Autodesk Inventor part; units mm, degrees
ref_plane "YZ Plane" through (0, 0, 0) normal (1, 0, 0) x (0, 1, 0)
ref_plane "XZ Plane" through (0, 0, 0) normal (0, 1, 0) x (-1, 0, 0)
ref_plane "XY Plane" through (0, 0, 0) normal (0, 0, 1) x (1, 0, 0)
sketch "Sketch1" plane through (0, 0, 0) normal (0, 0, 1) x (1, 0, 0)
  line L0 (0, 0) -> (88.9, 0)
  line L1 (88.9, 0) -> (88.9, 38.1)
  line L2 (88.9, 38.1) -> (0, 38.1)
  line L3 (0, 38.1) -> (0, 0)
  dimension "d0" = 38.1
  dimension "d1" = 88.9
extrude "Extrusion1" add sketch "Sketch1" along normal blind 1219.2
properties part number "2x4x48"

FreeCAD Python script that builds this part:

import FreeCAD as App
import Part
import Sketcher

V = App.Vector
Q = App.Units.Quantity


def add_polygon(sketch, points):
    """Adds a closed chain of lines whose ends are joined by coincident constraints."""
    first, n = sketch.GeometryCount, len(points)
    for a, b in zip(points, points[1:] + points[:1]):
        sketch.addGeometry(Part.LineSegment(App.Vector(*a, 0), App.Vector(*b, 0)), False)
    for i in range(n):
        sketch.addConstraint(Sketcher.Constraint("Coincident", first + i, 2, first + (i + 1) % n, 1))

doc = App.newDocument("Part")
body = doc.addObject("PartDesign::Body", "Body")

sketch1 = body.newObject("Sketcher::SketchObject", "Sketch")
sketch1.AttachmentSupport = (doc.getObject("XY_Plane"), [""])
sketch1.MapMode = "FlatFace"
add_polygon(sketch1, [(0, 38), (0, 0), (89, 0), (89, 38)])
sketch1.addConstraint([
    Sketcher.Constraint("Vertical", 0),
    Sketcher.Constraint("Horizontal", 1),
    Sketcher.Constraint("Vertical", 2),
    Sketcher.Constraint("Horizontal", 3),
    Sketcher.Constraint("Coincident", 0, 2, -1, 1),
    Sketcher.Constraint("DistanceX", 1, 1, 1, 2, Q("3.5 in")),
    Sketcher.Constraint("DistanceY", 0, 2, 0, 1, Q("1.5 in")),
])
pad1 = body.newObject("PartDesign::Pad", "Pad")
pad1.Profile = sketch1
pad1.Length = Q("48 in")

doc.recompute()
